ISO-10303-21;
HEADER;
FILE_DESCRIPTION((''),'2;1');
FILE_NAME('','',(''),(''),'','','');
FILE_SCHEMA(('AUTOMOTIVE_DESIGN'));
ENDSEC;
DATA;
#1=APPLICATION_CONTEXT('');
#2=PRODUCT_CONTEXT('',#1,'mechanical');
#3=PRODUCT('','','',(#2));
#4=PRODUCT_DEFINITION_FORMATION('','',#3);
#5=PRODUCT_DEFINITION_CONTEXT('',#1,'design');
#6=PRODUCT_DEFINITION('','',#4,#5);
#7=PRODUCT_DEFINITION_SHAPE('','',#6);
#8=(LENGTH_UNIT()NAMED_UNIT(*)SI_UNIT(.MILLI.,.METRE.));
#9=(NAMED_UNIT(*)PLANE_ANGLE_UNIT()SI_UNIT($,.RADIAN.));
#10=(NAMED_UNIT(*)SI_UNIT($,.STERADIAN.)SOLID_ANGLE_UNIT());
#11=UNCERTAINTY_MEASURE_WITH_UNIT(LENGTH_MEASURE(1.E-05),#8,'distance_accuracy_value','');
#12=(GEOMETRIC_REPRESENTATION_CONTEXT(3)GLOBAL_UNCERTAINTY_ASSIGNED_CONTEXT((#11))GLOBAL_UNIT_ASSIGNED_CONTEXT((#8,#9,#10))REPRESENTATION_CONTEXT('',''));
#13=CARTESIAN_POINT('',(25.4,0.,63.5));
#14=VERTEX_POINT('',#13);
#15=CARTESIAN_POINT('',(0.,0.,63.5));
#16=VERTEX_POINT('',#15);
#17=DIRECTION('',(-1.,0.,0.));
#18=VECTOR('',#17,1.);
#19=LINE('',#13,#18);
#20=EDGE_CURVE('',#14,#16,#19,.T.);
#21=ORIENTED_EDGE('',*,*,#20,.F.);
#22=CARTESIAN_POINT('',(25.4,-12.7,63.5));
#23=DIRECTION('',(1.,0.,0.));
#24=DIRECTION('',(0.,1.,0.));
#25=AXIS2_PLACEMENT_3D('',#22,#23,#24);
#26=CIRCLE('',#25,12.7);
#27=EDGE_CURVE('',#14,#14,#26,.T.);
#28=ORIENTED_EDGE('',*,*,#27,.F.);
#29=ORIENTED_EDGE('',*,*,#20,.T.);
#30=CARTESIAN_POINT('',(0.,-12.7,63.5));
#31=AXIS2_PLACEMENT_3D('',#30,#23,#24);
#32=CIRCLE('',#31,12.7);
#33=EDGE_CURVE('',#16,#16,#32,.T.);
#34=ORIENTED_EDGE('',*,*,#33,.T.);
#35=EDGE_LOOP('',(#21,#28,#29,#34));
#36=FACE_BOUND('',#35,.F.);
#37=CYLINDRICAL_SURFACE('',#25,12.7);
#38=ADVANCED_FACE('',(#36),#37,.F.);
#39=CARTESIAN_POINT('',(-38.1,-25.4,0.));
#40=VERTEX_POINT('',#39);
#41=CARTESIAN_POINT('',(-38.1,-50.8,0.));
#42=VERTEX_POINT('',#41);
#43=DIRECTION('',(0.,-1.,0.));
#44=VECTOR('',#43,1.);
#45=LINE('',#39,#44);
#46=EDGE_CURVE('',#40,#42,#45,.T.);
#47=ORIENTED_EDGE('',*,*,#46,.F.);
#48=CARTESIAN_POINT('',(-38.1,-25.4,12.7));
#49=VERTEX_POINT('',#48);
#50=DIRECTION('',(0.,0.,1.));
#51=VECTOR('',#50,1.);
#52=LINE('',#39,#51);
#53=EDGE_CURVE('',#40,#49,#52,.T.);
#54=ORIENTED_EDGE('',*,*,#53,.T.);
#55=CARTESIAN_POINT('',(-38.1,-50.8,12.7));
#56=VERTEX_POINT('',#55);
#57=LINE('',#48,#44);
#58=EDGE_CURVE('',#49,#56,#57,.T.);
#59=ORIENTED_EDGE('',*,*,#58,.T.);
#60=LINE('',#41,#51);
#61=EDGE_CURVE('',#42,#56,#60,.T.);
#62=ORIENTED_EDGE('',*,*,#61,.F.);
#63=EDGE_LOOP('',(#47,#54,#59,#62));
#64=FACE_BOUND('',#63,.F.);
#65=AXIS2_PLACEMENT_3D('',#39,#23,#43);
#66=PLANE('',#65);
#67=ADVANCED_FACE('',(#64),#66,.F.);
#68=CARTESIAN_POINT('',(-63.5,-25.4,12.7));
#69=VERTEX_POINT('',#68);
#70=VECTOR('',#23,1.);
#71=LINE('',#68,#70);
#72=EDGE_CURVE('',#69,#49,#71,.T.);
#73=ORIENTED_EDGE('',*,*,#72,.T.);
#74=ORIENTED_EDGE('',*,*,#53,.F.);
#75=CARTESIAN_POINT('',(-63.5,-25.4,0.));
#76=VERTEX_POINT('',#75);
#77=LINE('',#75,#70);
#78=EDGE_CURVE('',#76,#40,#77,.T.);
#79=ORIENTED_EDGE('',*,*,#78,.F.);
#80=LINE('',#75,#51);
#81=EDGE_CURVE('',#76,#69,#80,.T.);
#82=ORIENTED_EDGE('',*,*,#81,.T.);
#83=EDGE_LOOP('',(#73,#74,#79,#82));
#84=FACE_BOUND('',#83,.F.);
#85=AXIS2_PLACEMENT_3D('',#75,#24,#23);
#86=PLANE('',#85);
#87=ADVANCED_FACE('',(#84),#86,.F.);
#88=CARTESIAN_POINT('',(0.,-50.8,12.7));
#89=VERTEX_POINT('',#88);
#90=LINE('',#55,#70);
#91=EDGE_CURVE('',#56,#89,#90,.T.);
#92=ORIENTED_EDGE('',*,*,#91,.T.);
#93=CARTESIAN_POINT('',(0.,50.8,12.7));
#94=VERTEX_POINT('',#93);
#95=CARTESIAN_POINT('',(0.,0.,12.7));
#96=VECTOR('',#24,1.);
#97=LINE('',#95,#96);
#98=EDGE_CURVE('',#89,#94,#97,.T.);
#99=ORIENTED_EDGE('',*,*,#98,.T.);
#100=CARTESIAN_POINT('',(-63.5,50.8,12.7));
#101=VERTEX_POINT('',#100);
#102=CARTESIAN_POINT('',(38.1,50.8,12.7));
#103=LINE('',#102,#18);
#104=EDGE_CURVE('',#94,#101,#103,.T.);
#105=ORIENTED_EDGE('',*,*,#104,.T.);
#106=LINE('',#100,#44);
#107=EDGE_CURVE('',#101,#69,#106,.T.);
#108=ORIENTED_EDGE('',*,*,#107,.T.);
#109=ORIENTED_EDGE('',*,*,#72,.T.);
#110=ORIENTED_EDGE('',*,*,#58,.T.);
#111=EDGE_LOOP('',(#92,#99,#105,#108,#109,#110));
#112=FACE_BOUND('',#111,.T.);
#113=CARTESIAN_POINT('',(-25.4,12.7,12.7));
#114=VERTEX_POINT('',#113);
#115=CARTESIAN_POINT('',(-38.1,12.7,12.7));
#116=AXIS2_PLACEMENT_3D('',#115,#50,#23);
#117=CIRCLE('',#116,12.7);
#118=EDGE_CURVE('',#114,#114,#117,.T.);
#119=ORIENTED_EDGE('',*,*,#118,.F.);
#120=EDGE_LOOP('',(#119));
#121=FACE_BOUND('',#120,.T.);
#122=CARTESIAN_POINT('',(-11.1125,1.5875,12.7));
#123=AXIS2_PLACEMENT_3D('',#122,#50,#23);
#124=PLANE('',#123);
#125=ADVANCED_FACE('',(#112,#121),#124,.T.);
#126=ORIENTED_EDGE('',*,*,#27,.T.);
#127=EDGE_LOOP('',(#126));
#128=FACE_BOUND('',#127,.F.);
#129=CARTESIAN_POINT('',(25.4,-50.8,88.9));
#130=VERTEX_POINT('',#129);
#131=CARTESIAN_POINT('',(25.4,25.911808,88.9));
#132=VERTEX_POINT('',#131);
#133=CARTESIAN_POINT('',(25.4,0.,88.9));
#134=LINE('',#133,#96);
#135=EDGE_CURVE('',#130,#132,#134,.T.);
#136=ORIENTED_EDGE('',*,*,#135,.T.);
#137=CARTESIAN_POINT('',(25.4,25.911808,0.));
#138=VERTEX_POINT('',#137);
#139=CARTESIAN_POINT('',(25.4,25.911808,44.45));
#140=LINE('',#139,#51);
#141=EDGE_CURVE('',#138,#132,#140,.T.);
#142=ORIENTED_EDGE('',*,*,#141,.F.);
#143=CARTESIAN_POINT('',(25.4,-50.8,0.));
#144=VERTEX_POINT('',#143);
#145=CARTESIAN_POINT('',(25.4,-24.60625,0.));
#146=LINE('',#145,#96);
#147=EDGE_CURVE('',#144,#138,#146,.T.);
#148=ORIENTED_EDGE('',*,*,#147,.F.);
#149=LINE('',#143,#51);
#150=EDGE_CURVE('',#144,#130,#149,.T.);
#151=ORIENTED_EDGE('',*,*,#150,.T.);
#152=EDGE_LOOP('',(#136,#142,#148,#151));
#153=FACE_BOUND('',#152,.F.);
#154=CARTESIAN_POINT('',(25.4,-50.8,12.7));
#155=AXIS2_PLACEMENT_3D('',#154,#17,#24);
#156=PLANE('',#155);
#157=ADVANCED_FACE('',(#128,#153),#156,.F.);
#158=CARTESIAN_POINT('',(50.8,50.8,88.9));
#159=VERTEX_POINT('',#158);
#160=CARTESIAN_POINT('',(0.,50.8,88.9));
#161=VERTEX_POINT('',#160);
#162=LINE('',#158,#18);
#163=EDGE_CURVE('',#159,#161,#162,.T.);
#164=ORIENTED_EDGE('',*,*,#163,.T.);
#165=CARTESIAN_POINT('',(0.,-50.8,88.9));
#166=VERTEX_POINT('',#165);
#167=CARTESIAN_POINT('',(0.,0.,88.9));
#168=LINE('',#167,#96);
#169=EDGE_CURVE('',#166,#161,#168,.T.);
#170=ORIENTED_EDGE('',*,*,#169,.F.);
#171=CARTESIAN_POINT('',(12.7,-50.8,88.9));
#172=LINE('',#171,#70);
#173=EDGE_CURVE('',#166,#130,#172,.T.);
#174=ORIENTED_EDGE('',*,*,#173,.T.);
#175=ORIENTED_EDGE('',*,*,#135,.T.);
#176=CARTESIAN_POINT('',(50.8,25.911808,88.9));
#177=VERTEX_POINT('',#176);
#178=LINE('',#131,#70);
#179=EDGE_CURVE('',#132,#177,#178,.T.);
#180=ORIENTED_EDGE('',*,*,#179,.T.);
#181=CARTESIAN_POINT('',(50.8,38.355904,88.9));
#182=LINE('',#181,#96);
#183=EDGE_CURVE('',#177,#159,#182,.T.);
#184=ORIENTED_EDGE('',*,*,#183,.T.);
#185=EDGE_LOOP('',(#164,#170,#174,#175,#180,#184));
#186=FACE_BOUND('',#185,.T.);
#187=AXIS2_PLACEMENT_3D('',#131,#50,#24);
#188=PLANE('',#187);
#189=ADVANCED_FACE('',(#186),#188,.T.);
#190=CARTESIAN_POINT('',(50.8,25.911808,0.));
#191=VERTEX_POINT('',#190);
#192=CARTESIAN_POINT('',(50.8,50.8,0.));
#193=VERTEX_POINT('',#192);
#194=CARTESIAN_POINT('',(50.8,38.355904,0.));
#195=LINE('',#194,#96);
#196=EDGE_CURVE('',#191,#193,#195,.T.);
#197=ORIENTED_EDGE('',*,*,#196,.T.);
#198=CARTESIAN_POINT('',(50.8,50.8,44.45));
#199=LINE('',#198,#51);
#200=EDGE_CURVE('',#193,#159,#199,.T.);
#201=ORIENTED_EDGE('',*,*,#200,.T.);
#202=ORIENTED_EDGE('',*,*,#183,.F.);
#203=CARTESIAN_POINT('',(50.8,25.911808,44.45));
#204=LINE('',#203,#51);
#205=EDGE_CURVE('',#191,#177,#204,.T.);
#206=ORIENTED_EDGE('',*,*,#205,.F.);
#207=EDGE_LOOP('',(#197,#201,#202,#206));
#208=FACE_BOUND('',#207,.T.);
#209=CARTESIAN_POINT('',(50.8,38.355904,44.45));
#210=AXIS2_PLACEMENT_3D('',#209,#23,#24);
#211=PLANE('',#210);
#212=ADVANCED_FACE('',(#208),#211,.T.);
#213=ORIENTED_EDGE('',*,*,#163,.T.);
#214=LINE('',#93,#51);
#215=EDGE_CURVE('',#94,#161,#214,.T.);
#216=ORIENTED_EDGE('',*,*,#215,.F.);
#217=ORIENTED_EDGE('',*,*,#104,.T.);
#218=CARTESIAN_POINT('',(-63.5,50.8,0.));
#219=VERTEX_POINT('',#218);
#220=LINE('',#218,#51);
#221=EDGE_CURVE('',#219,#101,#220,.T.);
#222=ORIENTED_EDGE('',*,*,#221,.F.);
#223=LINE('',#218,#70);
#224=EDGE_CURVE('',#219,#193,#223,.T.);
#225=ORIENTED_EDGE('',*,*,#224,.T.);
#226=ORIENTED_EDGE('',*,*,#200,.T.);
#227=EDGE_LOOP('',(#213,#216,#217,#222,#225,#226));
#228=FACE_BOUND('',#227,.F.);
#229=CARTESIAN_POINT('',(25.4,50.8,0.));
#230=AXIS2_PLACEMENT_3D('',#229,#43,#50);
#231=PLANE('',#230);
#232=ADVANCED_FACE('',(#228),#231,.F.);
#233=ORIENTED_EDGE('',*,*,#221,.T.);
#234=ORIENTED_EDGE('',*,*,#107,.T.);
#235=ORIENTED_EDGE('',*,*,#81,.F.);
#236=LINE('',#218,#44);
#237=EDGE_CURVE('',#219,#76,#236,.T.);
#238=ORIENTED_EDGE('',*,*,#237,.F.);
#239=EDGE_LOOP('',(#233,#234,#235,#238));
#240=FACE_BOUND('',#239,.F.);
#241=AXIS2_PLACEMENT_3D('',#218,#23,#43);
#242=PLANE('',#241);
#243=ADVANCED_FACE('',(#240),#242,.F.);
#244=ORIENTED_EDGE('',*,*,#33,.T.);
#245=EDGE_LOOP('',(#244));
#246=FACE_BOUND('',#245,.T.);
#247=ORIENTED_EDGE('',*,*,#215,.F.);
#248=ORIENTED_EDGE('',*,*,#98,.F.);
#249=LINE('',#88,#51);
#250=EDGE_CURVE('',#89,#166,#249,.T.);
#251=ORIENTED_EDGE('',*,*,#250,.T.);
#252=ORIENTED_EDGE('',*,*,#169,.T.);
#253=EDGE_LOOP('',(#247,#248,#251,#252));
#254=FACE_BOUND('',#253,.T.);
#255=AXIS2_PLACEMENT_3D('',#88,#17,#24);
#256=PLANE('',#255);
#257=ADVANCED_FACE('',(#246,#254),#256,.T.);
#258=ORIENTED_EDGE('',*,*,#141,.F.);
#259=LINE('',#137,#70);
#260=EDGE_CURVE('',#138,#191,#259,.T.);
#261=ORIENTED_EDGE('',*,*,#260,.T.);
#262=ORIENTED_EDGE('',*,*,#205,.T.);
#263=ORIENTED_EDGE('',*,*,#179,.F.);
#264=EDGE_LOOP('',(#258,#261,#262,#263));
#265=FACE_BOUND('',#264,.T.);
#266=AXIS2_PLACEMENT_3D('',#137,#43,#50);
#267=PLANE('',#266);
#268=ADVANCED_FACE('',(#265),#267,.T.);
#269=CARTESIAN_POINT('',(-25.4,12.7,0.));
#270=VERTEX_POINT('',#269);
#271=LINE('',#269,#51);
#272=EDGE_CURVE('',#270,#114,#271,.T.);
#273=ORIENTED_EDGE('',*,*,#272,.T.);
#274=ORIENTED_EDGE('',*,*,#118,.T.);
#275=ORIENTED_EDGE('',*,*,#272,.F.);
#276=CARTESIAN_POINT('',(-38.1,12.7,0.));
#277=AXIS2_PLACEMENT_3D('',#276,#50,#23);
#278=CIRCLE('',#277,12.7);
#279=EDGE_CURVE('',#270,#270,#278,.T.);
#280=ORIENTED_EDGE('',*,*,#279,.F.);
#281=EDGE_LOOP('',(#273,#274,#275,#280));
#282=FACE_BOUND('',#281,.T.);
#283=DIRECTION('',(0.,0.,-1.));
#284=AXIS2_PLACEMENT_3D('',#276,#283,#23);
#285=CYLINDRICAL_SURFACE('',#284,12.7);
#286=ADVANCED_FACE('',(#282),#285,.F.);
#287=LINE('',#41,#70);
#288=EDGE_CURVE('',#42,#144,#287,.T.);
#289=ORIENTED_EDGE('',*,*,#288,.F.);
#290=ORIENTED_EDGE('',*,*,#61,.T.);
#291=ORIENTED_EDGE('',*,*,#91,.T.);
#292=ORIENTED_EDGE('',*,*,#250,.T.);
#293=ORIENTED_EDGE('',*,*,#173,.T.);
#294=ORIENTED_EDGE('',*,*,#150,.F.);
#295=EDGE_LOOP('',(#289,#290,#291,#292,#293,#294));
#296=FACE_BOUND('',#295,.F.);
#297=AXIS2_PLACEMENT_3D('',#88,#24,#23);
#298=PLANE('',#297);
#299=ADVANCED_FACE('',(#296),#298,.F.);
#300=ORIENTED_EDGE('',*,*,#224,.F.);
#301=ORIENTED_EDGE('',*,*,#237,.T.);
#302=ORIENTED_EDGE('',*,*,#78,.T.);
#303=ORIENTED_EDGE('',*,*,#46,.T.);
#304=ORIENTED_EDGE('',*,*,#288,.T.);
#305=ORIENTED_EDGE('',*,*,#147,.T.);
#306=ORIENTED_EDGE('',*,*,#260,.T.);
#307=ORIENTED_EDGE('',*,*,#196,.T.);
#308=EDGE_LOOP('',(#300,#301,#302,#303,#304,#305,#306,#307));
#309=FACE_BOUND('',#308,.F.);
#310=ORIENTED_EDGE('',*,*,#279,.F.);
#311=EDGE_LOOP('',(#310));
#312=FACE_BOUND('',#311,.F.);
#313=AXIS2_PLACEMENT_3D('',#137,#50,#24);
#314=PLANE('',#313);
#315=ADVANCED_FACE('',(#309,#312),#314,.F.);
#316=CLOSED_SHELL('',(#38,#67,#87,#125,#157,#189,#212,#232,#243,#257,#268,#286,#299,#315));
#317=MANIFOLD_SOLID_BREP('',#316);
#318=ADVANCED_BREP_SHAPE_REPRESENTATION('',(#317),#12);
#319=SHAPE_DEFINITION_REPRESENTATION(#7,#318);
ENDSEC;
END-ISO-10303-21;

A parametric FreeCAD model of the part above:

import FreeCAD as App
import Part
import Sketcher
from FreeCAD import Vector
Q = App.Units.Quantity


def add_polygon(sketch, points):
    """Adds a closed chain of lines whose ends are joined by coincident constraints."""
    first, n = sketch.GeometryCount, len(points)
    for a, b in zip(points, points[1:] + points[:1]):
        sketch.addGeometry(Part.LineSegment(App.Vector(*a, 0), App.Vector(*b, 0)), False)
    for i in range(n):
        sketch.addConstraint(Sketcher.Constraint("Coincident", first + i, 2, first + (i + 1) % n, 1))

doc = App.newDocument("Part")
body = doc.addObject("PartDesign::Body", "Body")

# Sketch on XY plane
sketch1 = doc.addObject("Sketcher::SketchObject", "Sketch")
body.addObject(sketch1)
sketch1.AttachmentSupport = (doc.XY_Plane, [""])
sketch1.MapMode = "FlatFace"
add_polygon(sketch1, [(-38, -51), (38, -51), (38, 51), (-64, 51), (-64, -25), (-38, -25)])  # lines 0-5
sketch1.addGeometry(Part.Circle(Vector(-38, 13, 0), Vector(0, 0, 1), 13), False)  # 6
sketch1.addConstraint([
    Sketcher.Constraint("Horizontal", 0),
    Sketcher.Constraint("Vertical", 1),
    Sketcher.Constraint("Horizontal", 2),
    Sketcher.Constraint("Vertical", 3),
    Sketcher.Constraint("Horizontal", 4),
    Sketcher.Constraint("Vertical", 5),
    Sketcher.Constraint("Symmetric", 1, 2, 5, 2, -1, 1),
    Sketcher.Constraint("Vertical", 6, 3, 4, 2),
    Sketcher.Constraint("Equal", 2, 1),
    Sketcher.Constraint("Equal", 0, 3),
    Sketcher.Constraint("Diameter", 6, Q("1 in")),
    Sketcher.Constraint("DistanceX", 0, 1, 0, 2, Q("3 in")),
    Sketcher.Constraint("DistanceX", 2, 2, 2, 1, Q("4 in")),
    Sketcher.Constraint("DistanceY", -1, 1, 6, 3, Q("0.5 in")),
])
pad1 = doc.addObject("PartDesign::Pad", "Pad")
body.addObject(pad1)
pad1.Profile = sketch1
pad1.Length = Q("0.5 in")

# Sketch on XY plane
sketch2 = doc.addObject("Sketcher::SketchObject", "Sketch001")
body.addObject(sketch2)
sketch2.AttachmentSupport = (doc.XY_Plane, [""])
sketch2.MapMode = "FlatFace"
sketch2.AttachmentOffset = App.Placement(Vector(0, 0, 0.5 * 25.4), App.Rotation())
add_polygon(sketch2, [(25, 51), (25, -51), (38, -51), (38, 51)])  # lines 0-3
sketch2.addConstraint([
    Sketcher.Constraint("Vertical", 0),
    Sketcher.Constraint("Horizontal", 1),
    Sketcher.Constraint("Vertical", 2),
    Sketcher.Constraint("Horizontal", 3),
    Sketcher.Constraint("DistanceY", 0, 2, 0, 1, Q("4 in")),
    Sketcher.Constraint("DistanceX", 1, 1, 1, 2, Q("0.5 in")),
    Sketcher.Constraint("DistanceX", -1, 1, 0, 2, Q("1 in")),
    Sketcher.Constraint("DistanceY", 0, 2, -1, 1, Q("2 in")),
])
pocket1 = doc.addObject("PartDesign::Pocket", "Pocket")
body.addObject(pocket1)
pocket1.Profile = sketch2
pocket1.Length = Q("1 in")

# Sketch on XY plane
sketch3 = doc.addObject("Sketcher::SketchObject", "Sketch002")
body.addObject(sketch3)
sketch3.AttachmentSupport = (doc.XY_Plane, [""])
sketch3.MapMode = "FlatFace"
sketch3.AttachmentOffset = App.Placement(Vector(0, 0, 0.5 * 25.4), App.Rotation())
add_polygon(sketch3, [(0, 51), (0, -51), (25, -51), (25, 51)])  # lines 0-3
sketch3.addConstraint([
    Sketcher.Constraint("Vertical", 0),
    Sketcher.Constraint("Horizontal", 1),
    Sketcher.Constraint("Vertical", 2),
    Sketcher.Constraint("Horizontal", 3),
    Sketcher.Constraint("Symmetric", 0, 2, 3, 2, -1, 1),
    Sketcher.Constraint("DistanceX", 1, 1, 1, 2, Q("1 in")),
    Sketcher.Constraint("DistanceY", 0, 2, 0, 1, Q("4 in")),
])
pad2 = doc.addObject("PartDesign::Pad", "Pad001")
body.addObject(pad2)
pad2.Profile = sketch3
pad2.Length = Q("3 in")

# Sketch on YZ plane
sketch4 = doc.addObject("Sketcher::SketchObject", "Sketch003")
body.addObject(sketch4)
sketch4.AttachmentSupport = (doc.YZ_Plane, [""])
sketch4.MapMode = "FlatFace"
sketch4.AttachmentOffset = App.Placement(Vector(0, 0, 1 * 25.4), App.Rotation())
sketch4.addGeometry(Part.Circle(Vector(-13, 64, 0), Vector(0, 0, 1), 13), False)
sketch4.addConstraint([
    Sketcher.Constraint("Diameter", 0, Q("1 in")),
    Sketcher.Constraint("DistanceX", 0, 3, -1, 1, Q("0.5 in")),
    Sketcher.Constraint("DistanceY", -1, 1, 0, 3, Q("2.5 in")),
])
pocket2 = doc.addObject("PartDesign::Pocket", "Pocket001")
body.addObject(pocket2)
pocket2.Profile = sketch4
pocket2.Length = Q("1 in")

# Sketch on YZ plane
sketch5 = doc.addObject("Sketcher::SketchObject", "Sketch004")
body.addObject(sketch5)
sketch5.AttachmentSupport = (doc.YZ_Plane, [""])
sketch5.MapMode = "FlatFace"
sketch5.AttachmentOffset = App.Placement(Vector(0, 0, 1 * 25.4), App.Rotation())
add_polygon(sketch5, [(26, 89), (26, 0), (51, 0), (51, 89)])  # lines 0-3
sketch5.addConstraint([
    Sketcher.Constraint("Vertical", 0),
    Sketcher.Constraint("Horizontal", 1),
    Sketcher.Constraint("Vertical", 2),
    Sketcher.Constraint("Horizontal", 3),
    Sketcher.Constraint("PointOnObject", 0, 2, -1),
    Sketcher.Constraint("DistanceY", 0, 2, 0, 1, Q("3.5 in")),
    Sketcher.Constraint("DistanceX", -1, 1, 1, 2, Q("2 in")),
    Sketcher.Constraint("DistanceX", 1, 1, 1, 2, 24.888192),
])
pad3 = doc.addObject("PartDesign::Pad", "Pad002")
body.addObject(pad3)
pad3.Profile = sketch5
pad3.Length = Q("1 in")

doc.recompute()
